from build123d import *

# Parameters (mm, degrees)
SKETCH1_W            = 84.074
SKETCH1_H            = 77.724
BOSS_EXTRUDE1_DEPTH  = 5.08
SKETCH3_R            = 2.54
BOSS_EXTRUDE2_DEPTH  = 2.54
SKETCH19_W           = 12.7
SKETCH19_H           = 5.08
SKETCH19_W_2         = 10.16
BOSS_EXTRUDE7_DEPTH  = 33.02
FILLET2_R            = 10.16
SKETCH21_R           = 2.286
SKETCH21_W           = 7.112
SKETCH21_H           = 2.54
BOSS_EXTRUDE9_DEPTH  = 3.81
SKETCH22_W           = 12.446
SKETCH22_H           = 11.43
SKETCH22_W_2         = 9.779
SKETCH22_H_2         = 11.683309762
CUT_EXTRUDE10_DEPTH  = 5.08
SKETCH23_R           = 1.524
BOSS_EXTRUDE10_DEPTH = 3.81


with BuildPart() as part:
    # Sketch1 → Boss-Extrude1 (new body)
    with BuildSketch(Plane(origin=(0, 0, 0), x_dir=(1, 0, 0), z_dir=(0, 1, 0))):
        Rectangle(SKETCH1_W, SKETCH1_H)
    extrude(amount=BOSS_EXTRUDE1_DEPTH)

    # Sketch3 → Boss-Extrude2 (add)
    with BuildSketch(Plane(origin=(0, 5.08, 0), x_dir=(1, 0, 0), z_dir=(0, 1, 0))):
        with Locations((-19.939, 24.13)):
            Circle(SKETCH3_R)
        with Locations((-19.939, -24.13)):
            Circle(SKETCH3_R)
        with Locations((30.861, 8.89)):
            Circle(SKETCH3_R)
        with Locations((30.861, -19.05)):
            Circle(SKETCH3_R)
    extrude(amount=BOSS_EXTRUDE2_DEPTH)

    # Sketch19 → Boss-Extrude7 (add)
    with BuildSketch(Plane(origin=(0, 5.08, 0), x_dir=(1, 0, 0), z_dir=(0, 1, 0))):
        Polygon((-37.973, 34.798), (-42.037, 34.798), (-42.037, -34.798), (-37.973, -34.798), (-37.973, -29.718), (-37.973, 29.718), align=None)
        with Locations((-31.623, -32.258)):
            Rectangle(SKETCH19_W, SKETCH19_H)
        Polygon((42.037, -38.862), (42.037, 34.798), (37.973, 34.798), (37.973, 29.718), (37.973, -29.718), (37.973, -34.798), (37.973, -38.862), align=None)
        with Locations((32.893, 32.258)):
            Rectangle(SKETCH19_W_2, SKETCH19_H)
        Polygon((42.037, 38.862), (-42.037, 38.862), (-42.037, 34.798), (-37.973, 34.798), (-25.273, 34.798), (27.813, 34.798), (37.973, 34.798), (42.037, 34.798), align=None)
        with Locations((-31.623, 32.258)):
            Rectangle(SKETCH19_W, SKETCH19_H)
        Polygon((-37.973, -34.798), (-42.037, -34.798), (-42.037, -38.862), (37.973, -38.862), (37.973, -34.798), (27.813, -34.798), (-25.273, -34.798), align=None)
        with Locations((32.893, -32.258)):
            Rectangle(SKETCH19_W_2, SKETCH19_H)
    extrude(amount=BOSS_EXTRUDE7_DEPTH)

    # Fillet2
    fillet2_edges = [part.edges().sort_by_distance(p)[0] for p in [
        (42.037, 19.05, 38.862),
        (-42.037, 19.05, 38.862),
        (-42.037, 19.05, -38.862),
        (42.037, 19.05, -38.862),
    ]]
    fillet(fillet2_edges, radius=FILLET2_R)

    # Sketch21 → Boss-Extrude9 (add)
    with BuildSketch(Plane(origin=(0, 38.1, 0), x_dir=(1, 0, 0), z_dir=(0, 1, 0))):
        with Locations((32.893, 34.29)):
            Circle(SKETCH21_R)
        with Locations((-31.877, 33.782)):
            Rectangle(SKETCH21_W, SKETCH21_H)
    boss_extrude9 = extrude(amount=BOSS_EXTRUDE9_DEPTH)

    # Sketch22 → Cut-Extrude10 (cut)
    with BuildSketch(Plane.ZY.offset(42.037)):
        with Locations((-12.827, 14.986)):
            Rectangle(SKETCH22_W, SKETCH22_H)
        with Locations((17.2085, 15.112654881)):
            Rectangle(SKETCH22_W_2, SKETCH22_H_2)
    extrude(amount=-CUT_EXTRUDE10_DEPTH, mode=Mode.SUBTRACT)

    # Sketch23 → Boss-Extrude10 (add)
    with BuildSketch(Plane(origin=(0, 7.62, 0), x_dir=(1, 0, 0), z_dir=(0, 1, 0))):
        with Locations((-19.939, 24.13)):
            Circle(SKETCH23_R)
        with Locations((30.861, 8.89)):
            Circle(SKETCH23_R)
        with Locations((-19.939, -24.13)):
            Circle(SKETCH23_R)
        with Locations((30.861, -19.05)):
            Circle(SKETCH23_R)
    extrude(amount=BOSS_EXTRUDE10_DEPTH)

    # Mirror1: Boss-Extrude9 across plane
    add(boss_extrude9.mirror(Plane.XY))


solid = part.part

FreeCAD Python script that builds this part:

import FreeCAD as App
import Part
import Sketcher
from FreeCAD import Vector
Q = App.Units.Quantity


def edges_at(feature, points):
    """Names of the edges that pass closest to the given points."""
    edges = feature.Shape.Edges
    near = lambda p: min(range(len(edges)), key=lambda i: edges[i].distToShape(Part.Vertex(*p))[0])
    return sorted({f"Edge{near(p) + 1}" for p in points})

doc = App.newDocument("Part")
body = doc.addObject("PartDesign::Body", "Body")

sketch1 = body.newObject("Sketcher::SketchObject", "Sketch")
sketch1.AttachmentSupport = (doc.getObject("XZ_Plane"), [""])
sketch1.MapMode = "FlatFace"
sketch1.addGeometry([
    Part.LineSegment(Vector(-42, -39, 0), Vector(-42, 39, 0)),
    Part.LineSegment(Vector(-42, 39, 0), Vector(42, 39, 0)),
    Part.LineSegment(Vector(42, 39, 0), Vector(42, -39, 0)),
    Part.LineSegment(Vector(42, -39, 0), Vector(-42, -39, 0)),
], False)
sketch1.addConstraint([
    Sketcher.Constraint("Coincident", 0, 2, 1, 1),
    Sketcher.Constraint("Coincident", 1, 2, 2, 1),
    Sketcher.Constraint("Coincident", 2, 2, 3, 1),
    Sketcher.Constraint("Coincident", 3, 2, 0, 1),
    Sketcher.Constraint("Vertical", 0),
    Sketcher.Constraint("Horizontal", 1),
    Sketcher.Constraint("Vertical", 2),
    Sketcher.Constraint("Horizontal", 3),
    Sketcher.Constraint("Symmetric", 0, 2, 2, 2, -1, 1),
    Sketcher.Constraint("DistanceX", 1, 1, 1, 2, Q("3.31 in")),
    Sketcher.Constraint("DistanceY", 0, 1, 0, 2, Q("3.06 in")),
])
pad1 = body.newObject("PartDesign::Pad", "Pad")
pad1.Profile = sketch1
pad1.Length = Q("0.2 in")
pad1.Reversed = True

sketch2 = body.newObject("Sketcher::SketchObject", "Sketch001")
sketch2.AttachmentSupport = (doc.getObject("XZ_Plane"), [""])
sketch2.MapMode = "FlatFace"
sketch2.AttachmentOffset = App.Placement(Vector(0, 0, -0.2 * 25.4), App.Rotation())
sketch2.addGeometry([
    Part.Circle(Vector(-19.9, -24.1, 0), Vector(0, 0, 1), 2.5),
    Part.Circle(Vector(-19.9, 24.1, 0), Vector(0, 0, 1), 2.5),
    Part.Circle(Vector(30.9, -8.9, 0), Vector(0, 0, 1), 2.5),
    Part.Circle(Vector(30.9, 19.1, 0), Vector(0, 0, 1), 2.5),
], False)
sketch2.addConstraint([
    Sketcher.Constraint("Equal", 0, 1),
    Sketcher.Constraint("Equal", 1, 2),
    Sketcher.Constraint("Equal", 2, 3),
    Sketcher.Constraint("Symmetric", 0, 3, 1, 3, -1),
    Sketcher.Constraint("Vertical", 2, 3, 3, 3),
    Sketcher.Constraint("Diameter", 0, Q("0.2 in")),
    Sketcher.Constraint("DistanceX", 0, 3, 2, 3, Q("2 in")),
    Sketcher.Constraint("DistanceY", 0, 3, 1, 3, Q("1.9 in")),
    Sketcher.Constraint("DistanceY", 0, 3, 2, 3, Q("0.6 in")),
    Sketcher.Constraint("DistanceY", 2, 3, 3, 3, Q("1.1 in")),
    Sketcher.Constraint("DistanceX", 0, 3, -1, 1, Q("0.785 in")),
])
pad2 = body.newObject("PartDesign::Pad", "Pad001")
pad2.Profile = sketch2
pad2.Length = Q("0.1 in")
pad2.Reversed = True

sketch3 = body.newObject("Sketcher::SketchObject", "Sketch002")
sketch3.AttachmentSupport = (doc.getObject("XZ_Plane"), [""])
sketch3.MapMode = "FlatFace"
sketch3.AttachmentOffset = App.Placement(Vector(0, 0, -0.2 * 25.4), App.Rotation())
sketch3.addGeometry([
    Part.LineSegment(Vector(42, 39, 0), Vector(42, -39, 0)),
    Part.LineSegment(Vector(42, -39, 0), Vector(-42, -39, 0)),
    Part.LineSegment(Vector(-42, -39, 0), Vector(-42, 39, 0)),
    Part.LineSegment(Vector(-42, 39, 0), Vector(42, 39, 0)),
    Part.LineSegment(Vector(-25, 35, 0), Vector(-25, 30, 0)),
    Part.LineSegment(Vector(-25, 30, 0), Vector(-38, 30, 0)),
    Part.LineSegment(Vector(-38, 30, 0), Vector(-38, -30, 0)),
    Part.LineSegment(Vector(-38, -30, 0), Vector(-25, -30, 0)),
    Part.LineSegment(Vector(-25, -30, 0), Vector(-25, -35, 0)),
    Part.LineSegment(Vector(-25, -35, 0), Vector(28, -35, 0)),
    Part.LineSegment(Vector(28, -35, 0), Vector(28, -30, 0)),
    Part.LineSegment(Vector(28, -30, 0), Vector(38, -30, 0)),
    Part.LineSegment(Vector(38, -30, 0), Vector(38, 30, 0)),
    Part.LineSegment(Vector(38, 30, 0), Vector(28, 30, 0)),
    Part.LineSegment(Vector(28, 30, 0), Vector(28, 35, 0)),
    Part.LineSegment(Vector(28, 35, 0), Vector(-25, 35, 0)),
], False)
sketch3.addConstraint([
    Sketcher.Constraint("Coincident", 0, 2, 1, 1),
    Sketcher.Constraint("Coincident", 1, 2, 2, 1),
    Sketcher.Constraint("Coincident", 2, 2, 3, 1),
    Sketcher.Constraint("Coincident", 3, 2, 0, 1),
    Sketcher.Constraint("Coincident", 4, 2, 5, 1),
    Sketcher.Constraint("Coincident", 5, 2, 6, 1),
    Sketcher.Constraint("Coincident", 6, 2, 7, 1),
    Sketcher.Constraint("Coincident", 7, 2, 8, 1),
    Sketcher.Constraint("Coincident", 8, 2, 9, 1),
    Sketcher.Constraint("Coincident", 9, 2, 10, 1),
    Sketcher.Constraint("Coincident", 10, 2, 11, 1),
    Sketcher.Constraint("Coincident", 11, 2, 12, 1),
    Sketcher.Constraint("Coincident", 12, 2, 13, 1),
    Sketcher.Constraint("Coincident", 13, 2, 14, 1),
    Sketcher.Constraint("Coincident", 14, 2, 15, 1),
    Sketcher.Constraint("Coincident", 15, 2, 4, 1),
    Sketcher.Constraint("Vertical", 0),
    Sketcher.Constraint("Horizontal", 1),
    Sketcher.Constraint("Vertical", 2),
    Sketcher.Constraint("Horizontal", 3),
    Sketcher.Constraint("Vertical", 4),
    Sketcher.Constraint("Horizontal", 5),
    Sketcher.Constraint("Vertical", 6),
    Sketcher.Constraint("Horizontal", 7),
    Sketcher.Constraint("Vertical", 8),
    Sketcher.Constraint("Horizontal", 9),
    Sketcher.Constraint("Vertical", 10),
    Sketcher.Constraint("Horizontal", 11),
    Sketcher.Constraint("Vertical", 12),
    Sketcher.Constraint("Horizontal", 13),
    Sketcher.Constraint("Vertical", 14),
    Sketcher.Constraint("Horizontal", 15),
    Sketcher.Constraint("Symmetric", 0, 2, 2, 2, -1, 1),
    Sketcher.Constraint("Symmetric", 5, 2, 11, 2, -1, 1),
    Sketcher.Constraint("Symmetric", 4, 2, 7, 2, -1),
    Sketcher.Constraint("Symmetric", 10, 2, 13, 2, -1),
    Sketcher.Constraint("Equal", 4, 8),
    Sketcher.Constraint("DistanceX", 5, 2, 5, 1, Q("0.5 in")),
    Sketcher.Constraint("DistanceX", 11, 1, 11, 2, Q("0.4 in")),
    Sketcher.Constraint("DistanceY", 4, 2, 4, 1, Q("0.2 in")),
    Sketcher.Constraint("DistanceX", 1, 2, 1, 1, Q("3.31 in")),
    Sketcher.Constraint("DistanceX", 9, 1, 9, 2, Q("2.09 in")),
    Sketcher.Constraint("DistanceY", 0, 2, 0, 1, Q("3.06 in")),
    Sketcher.Constraint("DistanceY", 6, 2, 6, 1, Q("2.34 in")),
])
pad3 = body.newObject("PartDesign::Pad", "Pad002")
pad3.Profile = sketch3
pad3.Length = Q("1.3 in")
pad3.Reversed = True
doc.recompute()

fillet = body.newObject("PartDesign::Fillet", "Fillet")
fillet.Base = (pad3, edges_at(pad3, [
    (42.037, 19.05, 38.862),
    (-42.037, 19.05, 38.862),
    (-42.037, 19.05, -38.862),
    (42.037, 19.05, -38.862),
]))
fillet.Radius = Q("0.4 in")

sketch4 = body.newObject("Sketcher::SketchObject", "Sketch003")
sketch4.AttachmentSupport = (doc.getObject("XZ_Plane"), [""])
sketch4.MapMode = "FlatFace"
sketch4.AttachmentOffset = App.Placement(Vector(0, 0, -1.5 * 25.4), App.Rotation())
sketch4.addGeometry([
    Part.Circle(Vector(32.9, -34.3, 0), Vector(0, 0, 1), 2.3),
    Part.LineSegment(Vector(-35.4, -35.1, 0), Vector(-35.4, -32.5, 0)),
    Part.LineSegment(Vector(-35.4, -32.5, 0), Vector(-28.3, -32.5, 0)),
    Part.LineSegment(Vector(-28.3, -32.5, 0), Vector(-28.3, -35.1, 0)),
    Part.LineSegment(Vector(-28.3, -35.1, 0), Vector(-35.4, -35.1, 0)),
], False)
sketch4.addConstraint([
    Sketcher.Constraint("Coincident", 1, 2, 2, 1),
    Sketcher.Constraint("Coincident", 2, 2, 3, 1),
    Sketcher.Constraint("Coincident", 3, 2, 4, 1),
    Sketcher.Constraint("Coincident", 4, 2, 1, 1),
    Sketcher.Constraint("Vertical", 1),
    Sketcher.Constraint("Horizontal", 2),
    Sketcher.Constraint("Vertical", 3),
    Sketcher.Constraint("Horizontal", 4),
    Sketcher.Constraint("Diameter", 0, Q("0.18 in")),
    Sketcher.Constraint("DistanceY", 1, 1, 1, 2, Q("0.1 in")),
    Sketcher.Constraint("DistanceX", 2, 1, 2, 2, Q("0.28 in")),
    Sketcher.Constraint("DistanceY", 0, 3, -1, 1, Q("1.35 in")),
    Sketcher.Constraint("DistanceY", 1, 2, -1, 1, Q("1.28 in")),
    Sketcher.Constraint("DistanceX", 1, 2, 0, 3, Q("2.69 in")),
    Sketcher.Constraint("DistanceX", -1, 1, 0, 3, Q("1.295 in")),
])
pad4 = body.newObject("PartDesign::Pad", "Pad003")
pad4.Profile = sketch4
pad4.Length = Q("0.15 in")
pad4.Reversed = True

sketch5 = body.newObject("Sketcher::SketchObject", "Sketch004")
sketch5.AttachmentSupport = (doc.getObject("YZ_Plane"), [""])
sketch5.MapMode = "FlatFace"
sketch5.AttachmentOffset = App.Placement(Vector(0, 0, -1.655 * 25.4), App.Rotation())
sketch5.addGeometry([
    Part.LineSegment(Vector(21, -19, 0), Vector(9, -19, 0)),
    Part.LineSegment(Vector(9, -19, 0), Vector(9, -7, 0)),
    Part.LineSegment(Vector(9, -7, 0), Vector(21, -7, 0)),
    Part.LineSegment(Vector(21, -7, 0), Vector(21, -19, 0)),
    Part.LineSegment(Vector(21, 12, 0), Vector(9, 12, 0)),
    Part.LineSegment(Vector(9, 12, 0), Vector(9, 22, 0)),
    Part.LineSegment(Vector(9, 22, 0), Vector(21, 22, 0)),
    Part.LineSegment(Vector(21, 22, 0), Vector(21, 12, 0)),
], False)
sketch5.addConstraint([
    Sketcher.Constraint("Coincident", 0, 2, 1, 1),
    Sketcher.Constraint("Coincident", 1, 2, 2, 1),
    Sketcher.Constraint("Coincident", 2, 2, 3, 1),
    Sketcher.Constraint("Coincident", 3, 2, 0, 1),
    Sketcher.Constraint("Coincident", 4, 2, 5, 1),
    Sketcher.Constraint("Coincident", 5, 2, 6, 1),
    Sketcher.Constraint("Coincident", 6, 2, 7, 1),
    Sketcher.Constraint("Coincident", 7, 2, 4, 1),
    Sketcher.Constraint("Horizontal", 0),
    Sketcher.Constraint("Vertical", 1),
    Sketcher.Constraint("Horizontal", 2),
    Sketcher.Constraint("Vertical", 3),
    Sketcher.Constraint("Horizontal", 4),
    Sketcher.Constraint("Vertical", 5),
    Sketcher.Constraint("Horizontal", 6),
    Sketcher.Constraint("Vertical", 7),
    Sketcher.Constraint("Vertical", 1, 2, 4, 2),
    Sketcher.Constraint("DistanceX", 0, 2, 0, 1, Q("0.45 in")),
    Sketcher.Constraint("DistanceY", 1, 1, 1, 2, Q("0.49 in")),
    Sketcher.Constraint("DistanceY", 5, 1, 5, 2, Q("0.385 in")),
    Sketcher.Constraint("DistanceY", 0, 2, -1, 1, Q("0.75 in")),
    Sketcher.Constraint("DistanceY", -1, 1, 5, 2, Q("0.87 in")),
    Sketcher.Constraint("DistanceX", -1, 1, 0, 2, Q("0.365 in")),
    Sketcher.Constraint("DistanceX", 4, 2, 4, 1, 11.68331),
])
pocket1 = body.newObject("PartDesign::Pocket", "Pocket")
pocket1.Profile = sketch5
pocket1.Length = Q("0.2 in")
pocket1.Reversed = True

sketch6 = body.newObject("Sketcher::SketchObject", "Sketch005")
sketch6.AttachmentSupport = (doc.getObject("XZ_Plane"), [""])
sketch6.MapMode = "FlatFace"
sketch6.AttachmentOffset = App.Placement(Vector(0, 0, -0.3 * 25.4), App.Rotation())
sketch6.addGeometry([
    Part.Circle(Vector(-19.9, -24.1, 0), Vector(0, 0, 1), 1.5),
    Part.Circle(Vector(30.9, -8.9, 0), Vector(0, 0, 1), 1.5),
    Part.Circle(Vector(-19.9, 24.1, 0), Vector(0, 0, 1), 1.5),
    Part.Circle(Vector(30.9, 19.1, 0), Vector(0, 0, 1), 1.5),
], False)
sketch6.addConstraint([
    Sketcher.Constraint("Equal", 0, 1),
    Sketcher.Constraint("Equal", 1, 2),
    Sketcher.Constraint("Equal", 2, 3),
    Sketcher.Constraint("Symmetric", 0, 3, 2, 3, -1),
    Sketcher.Constraint("Vertical", 1, 3, 3, 3),
    Sketcher.Constraint("Diameter", 0, Q("0.12 in")),
    Sketcher.Constraint("DistanceX", 0, 3, 1, 3, Q("2 in")),
    Sketcher.Constraint("DistanceY", 0, 3, 1, 3, Q("0.6 in")),
    Sketcher.Constraint("DistanceY", 0, 3, 2, 3, Q("1.9 in")),
    Sketcher.Constraint("DistanceY", 1, 3, 3, 3, Q("1.1 in")),
    Sketcher.Constraint("DistanceX", 0, 3, -1, 1, Q("0.785 in")),
])
pad5 = body.newObject("PartDesign::Pad", "Pad004")
pad5.Profile = sketch6
pad5.Length = Q("0.15 in")
pad5.Reversed = True
doc.recompute()

mirrored = body.newObject("PartDesign::Mirrored", "Mirrored")
mirrored.Originals = [pad4]
mirrored.MirrorPlane = (doc.getObject("XY_Plane"), [""])
body.Tip = mirrored

doc.recompute()
